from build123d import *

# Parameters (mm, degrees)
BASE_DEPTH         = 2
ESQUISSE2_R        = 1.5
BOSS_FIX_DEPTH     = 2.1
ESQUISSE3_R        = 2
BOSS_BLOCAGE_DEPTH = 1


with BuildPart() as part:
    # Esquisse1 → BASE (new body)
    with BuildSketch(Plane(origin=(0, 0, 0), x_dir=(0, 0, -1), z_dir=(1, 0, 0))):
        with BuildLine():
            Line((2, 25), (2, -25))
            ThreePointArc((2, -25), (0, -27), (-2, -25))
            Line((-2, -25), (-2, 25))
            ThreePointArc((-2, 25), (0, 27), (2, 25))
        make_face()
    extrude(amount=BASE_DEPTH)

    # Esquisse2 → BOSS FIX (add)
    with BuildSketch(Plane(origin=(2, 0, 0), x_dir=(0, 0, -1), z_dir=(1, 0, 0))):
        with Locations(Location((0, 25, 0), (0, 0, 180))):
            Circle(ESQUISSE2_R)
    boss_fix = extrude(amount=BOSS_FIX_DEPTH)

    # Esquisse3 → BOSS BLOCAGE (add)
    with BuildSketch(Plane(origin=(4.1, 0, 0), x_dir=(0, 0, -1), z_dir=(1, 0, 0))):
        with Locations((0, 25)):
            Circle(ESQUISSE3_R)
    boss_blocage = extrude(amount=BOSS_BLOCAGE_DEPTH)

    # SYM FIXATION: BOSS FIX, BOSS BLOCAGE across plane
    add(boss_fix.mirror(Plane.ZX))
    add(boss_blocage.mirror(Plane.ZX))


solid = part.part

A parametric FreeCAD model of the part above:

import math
import FreeCAD as App
import Part
import Sketcher
Q = App.Units.Quantity

doc = App.newDocument("Part")
body = doc.addObject("PartDesign::Body", "Body")

sketch1 = doc.addObject("Sketcher::SketchObject", "Sketch")
body.addObject(sketch1)
sketch1.AttachmentSupport = (doc.YZ_Plane, [""])
sketch1.MapMode = "FlatFace"
sketch1.addGeometry([
    Part.LineSegment(App.Vector(-25, -2, 0), App.Vector(25, -2, 0)),
    Part.ArcOfCircle(Part.Circle(App.Vector(25, 0, 0), App.Vector(0, 0, 1), 2), math.radians(-90), math.radians(90)),
    Part.LineSegment(App.Vector(25, 2, 0), App.Vector(-25, 2, 0)),
    Part.ArcOfCircle(Part.Circle(App.Vector(-25, 0, 0), App.Vector(0, 0, 1), 2), math.radians(90), math.radians(270)),
], False)
sketch1.addConstraint([
    Sketcher.Constraint("Tangent", 0, 2, 1, 1),
    Sketcher.Constraint("Tangent", 1, 2, 2, 1),
    Sketcher.Constraint("Tangent", 2, 2, 3, 1),
    Sketcher.Constraint("Tangent", 3, 2, 0, 1),
    Sketcher.Constraint("Horizontal", 0),
    Sketcher.Constraint("Horizontal", 2),
    Sketcher.Constraint("Symmetric", 1, 3, 3, 3, -1, 1),
    Sketcher.Constraint("Radius", 1, Q("2 mm")),
    Sketcher.Constraint("DistanceX", 0, 1, 0, 2, Q("50 mm")),
])
pad1 = doc.addObject("PartDesign::Pad", "Pad")
body.addObject(pad1)
pad1.Profile = sketch1
pad1.Length = 2

sketch2 = doc.addObject("Sketcher::SketchObject", "Sketch001")
body.addObject(sketch2)
sketch2.AttachmentSupport = (doc.YZ_Plane, [""])
sketch2.MapMode = "FlatFace"
sketch2.AttachmentOffset = App.Placement(App.Vector(0, 0, 2), App.Rotation())
sketch2.addGeometry(Part.Circle(App.Vector(25, 0, 0), App.Vector(0, 0, 1), 1.5), False)
sketch2.addConstraint([
    Sketcher.Constraint("PointOnObject", 0, 3, -1),
    Sketcher.Constraint("Diameter", 0, Q("3 mm")),
    Sketcher.Constraint("DistanceX", -1, 1, 0, 3, Q("25 mm")),
])
pad2 = doc.addObject("PartDesign::Pad", "Pad001")
body.addObject(pad2)
pad2.Profile = sketch2
pad2.Length = 2.1

sketch3 = doc.addObject("Sketcher::SketchObject", "Sketch002")
body.addObject(sketch3)
sketch3.AttachmentSupport = (doc.YZ_Plane, [""])
sketch3.MapMode = "FlatFace"
sketch3.AttachmentOffset = App.Placement(App.Vector(0, 0, 4.1), App.Rotation())
sketch3.addGeometry(Part.Circle(App.Vector(25, 0, 0), App.Vector(0, 0, 1), 2), False)
sketch3.addConstraint([
    Sketcher.Constraint("PointOnObject", 0, 3, -1),
    Sketcher.Constraint("Diameter", 0, Q("4 mm")),
    Sketcher.Constraint("DistanceX", -1, 1, 0, 3, Q("25 mm")),
])
pad3 = doc.addObject("PartDesign::Pad", "Pad002")
body.addObject(pad3)
pad3.Profile = sketch3
pad3.Length = 1
doc.recompute()

mirrored = doc.addObject("PartDesign::Mirrored", "Mirrored")
body.addObject(mirrored)
mirrored.Originals = [pad2, pad3]
mirrored.MirrorPlane = (doc.XZ_Plane, [""])
body.Tip = mirrored

doc.recompute()
